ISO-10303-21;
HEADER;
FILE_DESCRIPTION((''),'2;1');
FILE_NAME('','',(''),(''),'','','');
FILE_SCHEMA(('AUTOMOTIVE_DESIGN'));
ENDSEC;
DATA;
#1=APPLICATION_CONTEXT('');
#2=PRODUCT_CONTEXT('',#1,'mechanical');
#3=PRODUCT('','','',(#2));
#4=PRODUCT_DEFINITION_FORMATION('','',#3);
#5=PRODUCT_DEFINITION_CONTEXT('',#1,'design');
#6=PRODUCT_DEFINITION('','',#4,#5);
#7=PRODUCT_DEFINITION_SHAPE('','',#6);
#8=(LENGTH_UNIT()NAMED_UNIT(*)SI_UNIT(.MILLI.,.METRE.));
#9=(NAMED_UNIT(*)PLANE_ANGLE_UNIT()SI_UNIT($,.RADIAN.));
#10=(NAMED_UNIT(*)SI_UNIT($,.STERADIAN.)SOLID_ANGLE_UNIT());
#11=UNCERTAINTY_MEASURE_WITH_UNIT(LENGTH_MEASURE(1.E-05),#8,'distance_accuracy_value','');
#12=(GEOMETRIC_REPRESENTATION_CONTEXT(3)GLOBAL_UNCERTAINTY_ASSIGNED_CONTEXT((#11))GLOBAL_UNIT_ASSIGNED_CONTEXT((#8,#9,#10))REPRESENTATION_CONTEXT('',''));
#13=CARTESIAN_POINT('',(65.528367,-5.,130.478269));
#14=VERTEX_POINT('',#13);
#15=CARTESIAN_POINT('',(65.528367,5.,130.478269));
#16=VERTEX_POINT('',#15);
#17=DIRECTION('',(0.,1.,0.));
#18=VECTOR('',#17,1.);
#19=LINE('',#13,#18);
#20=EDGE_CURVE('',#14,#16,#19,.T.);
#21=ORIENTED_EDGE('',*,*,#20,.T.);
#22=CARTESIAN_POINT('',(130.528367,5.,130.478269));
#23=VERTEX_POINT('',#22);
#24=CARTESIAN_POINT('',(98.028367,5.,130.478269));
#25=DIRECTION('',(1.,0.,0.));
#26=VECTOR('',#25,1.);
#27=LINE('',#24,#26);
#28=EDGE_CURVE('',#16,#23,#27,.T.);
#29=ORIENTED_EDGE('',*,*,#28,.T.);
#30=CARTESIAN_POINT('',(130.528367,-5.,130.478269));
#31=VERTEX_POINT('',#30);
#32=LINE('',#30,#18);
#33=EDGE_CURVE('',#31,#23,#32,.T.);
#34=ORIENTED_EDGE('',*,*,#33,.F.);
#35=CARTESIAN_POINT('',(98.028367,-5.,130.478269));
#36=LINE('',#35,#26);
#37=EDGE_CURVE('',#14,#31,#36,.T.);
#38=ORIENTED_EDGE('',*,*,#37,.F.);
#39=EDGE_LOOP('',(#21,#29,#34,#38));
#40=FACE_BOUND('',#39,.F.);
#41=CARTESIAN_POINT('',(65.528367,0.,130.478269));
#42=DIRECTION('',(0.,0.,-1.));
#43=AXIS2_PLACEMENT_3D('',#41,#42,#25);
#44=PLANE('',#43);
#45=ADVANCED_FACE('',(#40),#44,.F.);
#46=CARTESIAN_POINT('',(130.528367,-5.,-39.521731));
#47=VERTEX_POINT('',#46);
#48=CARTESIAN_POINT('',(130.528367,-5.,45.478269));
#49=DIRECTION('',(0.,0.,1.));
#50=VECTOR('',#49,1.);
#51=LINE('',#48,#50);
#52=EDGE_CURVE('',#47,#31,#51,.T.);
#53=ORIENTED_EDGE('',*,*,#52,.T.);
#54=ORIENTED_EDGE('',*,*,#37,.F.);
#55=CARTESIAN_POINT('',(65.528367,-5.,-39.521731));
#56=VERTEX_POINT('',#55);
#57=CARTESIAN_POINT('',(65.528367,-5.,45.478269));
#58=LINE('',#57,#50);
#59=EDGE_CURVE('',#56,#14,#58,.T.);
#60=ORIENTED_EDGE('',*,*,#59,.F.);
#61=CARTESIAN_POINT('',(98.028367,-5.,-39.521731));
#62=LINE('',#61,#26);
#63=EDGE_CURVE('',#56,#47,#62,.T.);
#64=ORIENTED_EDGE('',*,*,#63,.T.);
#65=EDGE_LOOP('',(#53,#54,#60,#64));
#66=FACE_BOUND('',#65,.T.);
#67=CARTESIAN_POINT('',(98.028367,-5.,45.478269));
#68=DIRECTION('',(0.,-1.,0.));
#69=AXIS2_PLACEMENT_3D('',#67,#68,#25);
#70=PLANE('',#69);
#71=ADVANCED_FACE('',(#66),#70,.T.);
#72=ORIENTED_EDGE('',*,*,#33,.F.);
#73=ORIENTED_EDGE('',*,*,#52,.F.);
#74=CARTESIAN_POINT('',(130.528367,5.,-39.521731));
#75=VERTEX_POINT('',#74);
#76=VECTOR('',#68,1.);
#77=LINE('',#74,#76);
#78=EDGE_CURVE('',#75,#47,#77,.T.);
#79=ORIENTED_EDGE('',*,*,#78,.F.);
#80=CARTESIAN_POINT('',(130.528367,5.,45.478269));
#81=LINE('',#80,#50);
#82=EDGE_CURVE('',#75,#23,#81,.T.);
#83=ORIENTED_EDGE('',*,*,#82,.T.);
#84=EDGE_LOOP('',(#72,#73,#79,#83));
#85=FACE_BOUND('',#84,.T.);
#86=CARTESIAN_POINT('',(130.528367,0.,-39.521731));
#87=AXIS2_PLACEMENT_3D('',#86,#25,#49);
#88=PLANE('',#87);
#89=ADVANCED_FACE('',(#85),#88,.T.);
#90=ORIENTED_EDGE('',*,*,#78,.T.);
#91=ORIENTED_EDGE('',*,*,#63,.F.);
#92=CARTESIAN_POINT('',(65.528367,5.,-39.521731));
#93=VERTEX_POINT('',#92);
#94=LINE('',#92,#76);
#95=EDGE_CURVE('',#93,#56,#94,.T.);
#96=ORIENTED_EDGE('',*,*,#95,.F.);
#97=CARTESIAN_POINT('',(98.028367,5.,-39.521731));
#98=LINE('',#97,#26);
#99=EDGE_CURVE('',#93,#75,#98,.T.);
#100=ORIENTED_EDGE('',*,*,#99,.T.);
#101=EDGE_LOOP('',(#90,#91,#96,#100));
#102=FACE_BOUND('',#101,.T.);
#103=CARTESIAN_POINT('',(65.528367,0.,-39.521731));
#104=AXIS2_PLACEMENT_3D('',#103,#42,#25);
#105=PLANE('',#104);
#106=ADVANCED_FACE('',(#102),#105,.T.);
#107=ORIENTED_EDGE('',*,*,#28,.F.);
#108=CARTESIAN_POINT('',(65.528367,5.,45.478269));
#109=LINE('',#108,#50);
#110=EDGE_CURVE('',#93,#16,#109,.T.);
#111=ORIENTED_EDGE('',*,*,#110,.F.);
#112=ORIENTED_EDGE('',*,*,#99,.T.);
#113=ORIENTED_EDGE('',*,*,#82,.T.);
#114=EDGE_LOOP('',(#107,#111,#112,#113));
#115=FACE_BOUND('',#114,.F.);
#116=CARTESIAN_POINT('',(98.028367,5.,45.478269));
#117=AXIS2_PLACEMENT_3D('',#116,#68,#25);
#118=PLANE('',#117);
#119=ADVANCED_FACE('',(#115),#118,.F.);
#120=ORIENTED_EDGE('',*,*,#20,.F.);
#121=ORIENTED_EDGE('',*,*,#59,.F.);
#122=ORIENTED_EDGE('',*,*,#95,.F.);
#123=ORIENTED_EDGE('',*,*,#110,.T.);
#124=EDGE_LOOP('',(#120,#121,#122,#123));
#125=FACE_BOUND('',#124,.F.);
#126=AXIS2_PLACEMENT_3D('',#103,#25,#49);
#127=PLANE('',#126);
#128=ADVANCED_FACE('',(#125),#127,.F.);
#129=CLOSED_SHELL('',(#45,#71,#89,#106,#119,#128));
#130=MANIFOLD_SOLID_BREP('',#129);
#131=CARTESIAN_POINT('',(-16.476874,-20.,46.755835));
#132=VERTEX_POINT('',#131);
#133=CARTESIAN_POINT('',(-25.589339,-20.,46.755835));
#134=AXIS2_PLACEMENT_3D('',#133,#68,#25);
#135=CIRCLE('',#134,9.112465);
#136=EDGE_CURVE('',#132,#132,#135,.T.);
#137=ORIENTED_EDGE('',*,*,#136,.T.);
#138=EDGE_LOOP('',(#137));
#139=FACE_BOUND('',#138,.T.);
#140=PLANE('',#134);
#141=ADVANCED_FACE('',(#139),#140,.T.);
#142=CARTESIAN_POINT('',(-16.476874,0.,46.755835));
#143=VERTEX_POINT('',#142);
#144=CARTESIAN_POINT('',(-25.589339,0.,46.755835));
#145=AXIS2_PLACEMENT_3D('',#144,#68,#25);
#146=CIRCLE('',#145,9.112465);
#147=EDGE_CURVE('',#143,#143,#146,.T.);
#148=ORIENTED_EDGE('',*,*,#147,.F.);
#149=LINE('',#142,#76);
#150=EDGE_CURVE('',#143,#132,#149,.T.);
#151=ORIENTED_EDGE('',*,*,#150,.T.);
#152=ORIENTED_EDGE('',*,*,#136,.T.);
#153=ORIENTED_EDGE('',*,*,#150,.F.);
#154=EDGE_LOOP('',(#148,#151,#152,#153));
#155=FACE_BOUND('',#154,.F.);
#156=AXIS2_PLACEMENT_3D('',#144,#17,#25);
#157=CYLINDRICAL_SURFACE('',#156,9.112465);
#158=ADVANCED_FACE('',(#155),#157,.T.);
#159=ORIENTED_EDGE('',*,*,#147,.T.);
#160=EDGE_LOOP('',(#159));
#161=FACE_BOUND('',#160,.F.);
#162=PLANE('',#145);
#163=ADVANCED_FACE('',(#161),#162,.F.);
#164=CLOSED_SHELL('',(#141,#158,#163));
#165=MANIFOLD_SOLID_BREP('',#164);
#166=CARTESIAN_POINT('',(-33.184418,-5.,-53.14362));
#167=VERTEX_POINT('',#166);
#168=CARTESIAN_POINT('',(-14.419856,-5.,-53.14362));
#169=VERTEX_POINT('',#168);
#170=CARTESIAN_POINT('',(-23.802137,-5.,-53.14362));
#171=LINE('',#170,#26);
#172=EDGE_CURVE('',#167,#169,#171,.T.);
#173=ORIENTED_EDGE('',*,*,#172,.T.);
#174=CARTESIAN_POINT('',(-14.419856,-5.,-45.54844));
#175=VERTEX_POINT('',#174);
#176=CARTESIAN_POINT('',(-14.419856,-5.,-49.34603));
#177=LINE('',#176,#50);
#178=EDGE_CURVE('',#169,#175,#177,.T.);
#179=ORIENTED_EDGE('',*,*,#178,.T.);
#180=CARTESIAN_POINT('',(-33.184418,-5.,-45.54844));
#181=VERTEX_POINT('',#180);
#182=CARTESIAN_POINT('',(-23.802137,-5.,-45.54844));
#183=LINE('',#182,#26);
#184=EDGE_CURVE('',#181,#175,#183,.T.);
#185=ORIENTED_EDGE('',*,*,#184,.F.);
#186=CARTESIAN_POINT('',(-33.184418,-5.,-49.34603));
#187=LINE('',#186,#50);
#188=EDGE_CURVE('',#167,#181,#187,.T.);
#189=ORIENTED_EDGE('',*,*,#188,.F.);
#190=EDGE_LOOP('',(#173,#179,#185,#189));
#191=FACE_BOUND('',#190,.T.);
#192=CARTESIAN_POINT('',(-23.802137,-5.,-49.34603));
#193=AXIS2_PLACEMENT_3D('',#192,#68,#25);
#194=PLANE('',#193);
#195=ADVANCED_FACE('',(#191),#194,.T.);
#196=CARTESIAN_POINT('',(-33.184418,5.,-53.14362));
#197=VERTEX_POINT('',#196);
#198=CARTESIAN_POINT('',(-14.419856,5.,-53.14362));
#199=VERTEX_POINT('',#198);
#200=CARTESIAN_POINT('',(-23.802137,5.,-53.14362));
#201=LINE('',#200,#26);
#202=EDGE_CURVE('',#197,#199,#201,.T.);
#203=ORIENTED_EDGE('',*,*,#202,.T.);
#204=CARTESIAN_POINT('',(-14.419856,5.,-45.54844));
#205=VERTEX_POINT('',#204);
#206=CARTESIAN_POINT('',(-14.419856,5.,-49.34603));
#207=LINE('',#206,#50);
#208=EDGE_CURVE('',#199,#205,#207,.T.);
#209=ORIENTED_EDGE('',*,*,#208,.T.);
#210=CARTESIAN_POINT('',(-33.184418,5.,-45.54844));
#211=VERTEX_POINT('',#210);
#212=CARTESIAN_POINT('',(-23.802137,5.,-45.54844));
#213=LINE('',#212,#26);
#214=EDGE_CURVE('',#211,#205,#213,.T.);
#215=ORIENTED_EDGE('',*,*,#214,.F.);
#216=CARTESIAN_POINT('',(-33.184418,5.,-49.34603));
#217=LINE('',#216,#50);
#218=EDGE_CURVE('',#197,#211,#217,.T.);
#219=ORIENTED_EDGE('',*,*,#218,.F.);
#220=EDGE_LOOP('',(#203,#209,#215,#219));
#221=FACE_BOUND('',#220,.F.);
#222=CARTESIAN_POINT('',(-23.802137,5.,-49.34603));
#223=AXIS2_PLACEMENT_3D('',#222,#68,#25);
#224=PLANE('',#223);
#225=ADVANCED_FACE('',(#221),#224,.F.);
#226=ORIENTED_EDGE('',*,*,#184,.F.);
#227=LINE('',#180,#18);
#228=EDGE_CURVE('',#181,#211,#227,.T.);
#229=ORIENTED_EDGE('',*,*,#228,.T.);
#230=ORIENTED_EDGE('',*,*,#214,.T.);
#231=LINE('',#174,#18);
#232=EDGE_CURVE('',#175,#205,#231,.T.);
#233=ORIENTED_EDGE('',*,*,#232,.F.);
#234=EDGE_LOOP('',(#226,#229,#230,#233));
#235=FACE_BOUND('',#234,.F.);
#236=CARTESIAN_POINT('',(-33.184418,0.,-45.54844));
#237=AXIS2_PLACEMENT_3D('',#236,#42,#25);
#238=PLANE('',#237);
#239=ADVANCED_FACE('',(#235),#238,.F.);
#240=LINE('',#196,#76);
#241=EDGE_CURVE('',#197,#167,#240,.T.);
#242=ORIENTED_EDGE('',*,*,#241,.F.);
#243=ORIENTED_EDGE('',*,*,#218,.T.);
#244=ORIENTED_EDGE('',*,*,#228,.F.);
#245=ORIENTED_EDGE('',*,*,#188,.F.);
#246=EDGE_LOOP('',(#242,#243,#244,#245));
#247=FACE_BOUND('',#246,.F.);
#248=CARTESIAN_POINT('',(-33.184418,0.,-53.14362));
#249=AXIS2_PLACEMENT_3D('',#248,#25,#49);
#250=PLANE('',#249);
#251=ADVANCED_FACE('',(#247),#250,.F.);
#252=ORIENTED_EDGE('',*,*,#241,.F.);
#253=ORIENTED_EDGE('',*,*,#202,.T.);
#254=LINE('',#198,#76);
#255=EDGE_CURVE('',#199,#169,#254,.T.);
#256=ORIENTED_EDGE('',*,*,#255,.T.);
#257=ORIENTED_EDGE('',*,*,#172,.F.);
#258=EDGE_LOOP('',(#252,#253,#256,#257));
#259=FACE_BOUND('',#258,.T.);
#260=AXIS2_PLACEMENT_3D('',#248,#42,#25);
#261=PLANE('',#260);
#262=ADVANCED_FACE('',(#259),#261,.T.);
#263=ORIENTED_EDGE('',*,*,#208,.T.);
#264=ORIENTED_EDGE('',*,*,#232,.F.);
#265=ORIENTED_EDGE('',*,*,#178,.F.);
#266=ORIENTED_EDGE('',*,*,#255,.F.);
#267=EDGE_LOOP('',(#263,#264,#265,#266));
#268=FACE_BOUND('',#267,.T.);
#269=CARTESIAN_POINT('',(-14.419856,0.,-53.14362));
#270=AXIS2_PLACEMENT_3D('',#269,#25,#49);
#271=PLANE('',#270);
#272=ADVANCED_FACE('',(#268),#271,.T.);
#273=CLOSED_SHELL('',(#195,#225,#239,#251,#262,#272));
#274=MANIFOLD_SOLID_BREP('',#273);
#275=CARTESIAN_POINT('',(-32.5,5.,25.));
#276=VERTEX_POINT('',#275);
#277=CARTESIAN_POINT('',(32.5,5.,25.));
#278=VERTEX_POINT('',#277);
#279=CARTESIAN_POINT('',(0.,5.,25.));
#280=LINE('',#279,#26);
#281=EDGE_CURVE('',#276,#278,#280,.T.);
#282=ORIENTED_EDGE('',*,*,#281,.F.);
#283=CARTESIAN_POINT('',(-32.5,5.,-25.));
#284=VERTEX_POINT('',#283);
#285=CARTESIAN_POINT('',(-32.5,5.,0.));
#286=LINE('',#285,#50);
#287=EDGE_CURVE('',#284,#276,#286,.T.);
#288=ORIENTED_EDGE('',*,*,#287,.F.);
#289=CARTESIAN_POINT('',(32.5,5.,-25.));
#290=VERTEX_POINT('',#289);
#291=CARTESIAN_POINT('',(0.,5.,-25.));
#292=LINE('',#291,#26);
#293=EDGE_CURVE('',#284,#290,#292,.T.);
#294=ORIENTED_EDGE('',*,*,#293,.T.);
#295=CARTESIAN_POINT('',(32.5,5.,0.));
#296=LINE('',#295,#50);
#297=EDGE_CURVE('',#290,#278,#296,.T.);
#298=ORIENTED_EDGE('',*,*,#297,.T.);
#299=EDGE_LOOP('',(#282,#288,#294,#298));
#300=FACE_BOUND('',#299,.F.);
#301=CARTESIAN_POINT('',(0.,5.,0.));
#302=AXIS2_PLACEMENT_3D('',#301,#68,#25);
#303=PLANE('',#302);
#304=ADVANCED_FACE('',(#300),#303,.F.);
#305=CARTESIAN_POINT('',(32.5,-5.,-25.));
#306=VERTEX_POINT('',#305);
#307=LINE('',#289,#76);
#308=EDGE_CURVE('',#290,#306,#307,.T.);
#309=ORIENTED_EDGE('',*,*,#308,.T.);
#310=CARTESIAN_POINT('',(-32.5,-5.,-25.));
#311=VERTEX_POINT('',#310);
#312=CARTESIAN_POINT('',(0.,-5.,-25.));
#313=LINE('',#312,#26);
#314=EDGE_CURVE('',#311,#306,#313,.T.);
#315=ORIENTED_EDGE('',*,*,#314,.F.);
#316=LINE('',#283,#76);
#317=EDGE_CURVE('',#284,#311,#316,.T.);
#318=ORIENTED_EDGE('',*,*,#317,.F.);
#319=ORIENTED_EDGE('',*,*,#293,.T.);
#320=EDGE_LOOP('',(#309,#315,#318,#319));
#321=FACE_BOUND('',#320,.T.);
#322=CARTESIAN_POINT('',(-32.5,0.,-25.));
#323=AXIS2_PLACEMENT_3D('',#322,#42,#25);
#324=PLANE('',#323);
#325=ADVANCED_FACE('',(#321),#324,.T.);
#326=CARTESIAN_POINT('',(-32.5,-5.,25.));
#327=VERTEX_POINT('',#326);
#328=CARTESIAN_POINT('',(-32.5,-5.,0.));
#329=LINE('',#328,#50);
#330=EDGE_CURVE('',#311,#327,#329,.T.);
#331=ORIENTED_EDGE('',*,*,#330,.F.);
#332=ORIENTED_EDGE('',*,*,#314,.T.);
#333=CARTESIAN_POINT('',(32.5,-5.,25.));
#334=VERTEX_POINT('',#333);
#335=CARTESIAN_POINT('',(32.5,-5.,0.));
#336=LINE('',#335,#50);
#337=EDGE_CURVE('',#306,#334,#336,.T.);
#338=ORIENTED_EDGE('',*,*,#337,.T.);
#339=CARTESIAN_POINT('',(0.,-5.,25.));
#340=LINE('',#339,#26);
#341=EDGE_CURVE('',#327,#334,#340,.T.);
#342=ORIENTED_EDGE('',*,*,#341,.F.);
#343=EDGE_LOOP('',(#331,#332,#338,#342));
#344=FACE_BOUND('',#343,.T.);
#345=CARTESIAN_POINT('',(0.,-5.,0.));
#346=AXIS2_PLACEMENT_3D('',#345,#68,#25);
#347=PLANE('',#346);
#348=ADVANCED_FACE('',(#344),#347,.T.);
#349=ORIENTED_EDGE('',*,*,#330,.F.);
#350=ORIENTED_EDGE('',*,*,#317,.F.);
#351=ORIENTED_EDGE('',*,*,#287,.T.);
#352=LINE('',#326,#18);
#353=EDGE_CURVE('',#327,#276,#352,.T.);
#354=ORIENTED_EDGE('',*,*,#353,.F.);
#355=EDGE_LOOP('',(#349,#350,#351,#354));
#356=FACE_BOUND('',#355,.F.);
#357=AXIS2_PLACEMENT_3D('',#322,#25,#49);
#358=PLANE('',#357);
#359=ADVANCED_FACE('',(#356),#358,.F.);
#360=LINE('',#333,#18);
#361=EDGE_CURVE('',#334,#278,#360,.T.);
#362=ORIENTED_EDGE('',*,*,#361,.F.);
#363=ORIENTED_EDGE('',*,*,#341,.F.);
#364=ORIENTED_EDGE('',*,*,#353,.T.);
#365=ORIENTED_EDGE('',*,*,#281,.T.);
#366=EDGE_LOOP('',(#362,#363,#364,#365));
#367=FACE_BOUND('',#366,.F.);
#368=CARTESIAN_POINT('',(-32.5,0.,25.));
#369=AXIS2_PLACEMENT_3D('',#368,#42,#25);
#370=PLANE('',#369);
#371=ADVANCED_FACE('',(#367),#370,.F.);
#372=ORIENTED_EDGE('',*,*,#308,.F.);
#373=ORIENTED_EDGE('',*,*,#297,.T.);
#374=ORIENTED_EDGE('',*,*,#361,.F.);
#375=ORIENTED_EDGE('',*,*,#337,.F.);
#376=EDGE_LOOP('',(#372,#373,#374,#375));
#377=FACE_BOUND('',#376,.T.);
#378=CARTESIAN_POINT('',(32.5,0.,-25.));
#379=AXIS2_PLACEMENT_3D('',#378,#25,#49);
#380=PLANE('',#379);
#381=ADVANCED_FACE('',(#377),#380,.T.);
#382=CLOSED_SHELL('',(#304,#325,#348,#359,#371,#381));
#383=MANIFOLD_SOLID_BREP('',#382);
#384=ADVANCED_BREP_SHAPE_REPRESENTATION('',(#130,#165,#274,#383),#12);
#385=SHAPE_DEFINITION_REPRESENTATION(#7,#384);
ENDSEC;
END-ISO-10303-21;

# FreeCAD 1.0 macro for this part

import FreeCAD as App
import Part
import Sketcher

V = App.Vector

doc = App.newDocument("Part")
body = doc.addObject("PartDesign::Body", "Body")

sketch1 = body.newObject("Sketcher::SketchObject", "Sketch")
sketch1.AttachmentSupport = (doc.getObject("XZ_Plane"), [""])
sketch1.MapMode = "FlatFace"
sketch1.addGeometry([
    Part.LineSegment(V(-32.5, 25, 0), V(-32.5, -25, 0)),
    Part.LineSegment(V(-32.5, -25, 0), V(32.5, -25, 0)),
    Part.LineSegment(V(32.5, -25, 0), V(32.5, 25, 0)),
    Part.LineSegment(V(32.5, 25, 0), V(-32.5, 25, 0)),
], False)
sketch1.addConstraint([
    Sketcher.Constraint("Coincident", 0, 2, 1, 1),
    Sketcher.Constraint("Coincident", 1, 2, 2, 1),
    Sketcher.Constraint("Coincident", 2, 2, 3, 1),
    Sketcher.Constraint("Coincident", 3, 2, 0, 1),
    Sketcher.Constraint("Vertical", 0),
    Sketcher.Constraint("Horizontal", 1),
    Sketcher.Constraint("Vertical", 2),
    Sketcher.Constraint("Horizontal", 3),
    Sketcher.Constraint("Symmetric", 0, 2, 2, 2, -1, 1),
    Sketcher.Constraint("DistanceX", 1, 1, 1, 2, 65.0),
    Sketcher.Constraint("DistanceY", 0, 2, 0, 1, 50.0),
])
pad1 = body.newObject("PartDesign::Pad", "Pad")
pad1.Profile = sketch1
pad1.Length = 10
pad1.Midplane = True
body2 = doc.addObject("PartDesign::Body", "Body001")

sketch2 = body2.newObject("Sketcher::SketchObject", "Sketch001")
sketch2.AttachmentSupport = (doc.getObject("XZ_Plane001"), [""])
sketch2.MapMode = "FlatFace"
sketch2.addGeometry([
    Part.LineSegment(V(65.528367, 130.478269, 0), V(65.528367, -39.521731, 0)),
    Part.LineSegment(V(65.528367, -39.521731, 0), V(130.528367, -39.521731, 0)),
    Part.LineSegment(V(130.528367, -39.521731, 0), V(130.528367, 130.478269, 0)),
    Part.LineSegment(V(130.528367, 130.478269, 0), V(65.528367, 130.478269, 0)),
], False)
sketch2.addConstraint([
    Sketcher.Constraint("Coincident", 0, 2, 1, 1),
    Sketcher.Constraint("Coincident", 1, 2, 2, 1),
    Sketcher.Constraint("Coincident", 2, 2, 3, 1),
    Sketcher.Constraint("Coincident", 3, 2, 0, 1),
    Sketcher.Constraint("Vertical", 0),
    Sketcher.Constraint("Horizontal", 1),
    Sketcher.Constraint("Vertical", 2),
    Sketcher.Constraint("Horizontal", 3),
    Sketcher.Constraint("DistanceX", 1, 1, 1, 2, 65.0),
    Sketcher.Constraint("DistanceY", 0, 2, 0, 1, 170.0),
    Sketcher.Constraint("DistanceY", 0, 2, -1, 1, 39.521731),
    Sketcher.Constraint("DistanceX", -1, 1, 0, 2, 65.528367),
])
pad2 = body2.newObject("PartDesign::Pad", "Pad001")
pad2.Profile = sketch2
pad2.Length = 10
pad2.Midplane = True
body3 = doc.addObject("PartDesign::Body", "Body002")

sketch3 = body3.newObject("Sketcher::SketchObject", "Sketch002")
sketch3.AttachmentSupport = (doc.getObject("XZ_Plane002"), [""])
sketch3.MapMode = "FlatFace"
sketch3.addGeometry(Part.Circle(V(-25.589339, 46.755835, 0), V(0, 0, 1), 9.112465), False)
sketch3.addConstraint([
    Sketcher.Constraint("Diameter", 0, 18.22493),
    Sketcher.Constraint("DistanceX", 0, 3, -1, 1, 25.589339),
    Sketcher.Constraint("DistanceY", -1, 1, 0, 3, 46.755835),
])
pad3 = body3.newObject("PartDesign::Pad", "Pad002")
pad3.Profile = sketch3
pad3.Length = 20
body4 = doc.addObject("PartDesign::Body", "Body003")

sketch4 = body4.newObject("Sketcher::SketchObject", "Sketch003")
sketch4.AttachmentSupport = (doc.getObject("XZ_Plane003"), [""])
sketch4.MapMode = "FlatFace"
sketch4.addGeometry([
    Part.LineSegment(V(-33.184418, -45.54844, 0), V(-33.184418, -53.14362, 0)),
    Part.LineSegment(V(-33.184418, -53.14362, 0), V(-14.419856, -53.14362, 0)),
    Part.LineSegment(V(-14.419856, -53.14362, 0), V(-14.419856, -45.54844, 0)),
    Part.LineSegment(V(-14.419856, -45.54844, 0), V(-33.184418, -45.54844, 0)),
], False)
sketch4.addConstraint([
    Sketcher.Constraint("Coincident", 0, 2, 1, 1),
    Sketcher.Constraint("Coincident", 1, 2, 2, 1),
    Sketcher.Constraint("Coincident", 2, 2, 3, 1),
    Sketcher.Constraint("Coincident", 3, 2, 0, 1),
    Sketcher.Constraint("Vertical", 0),
    Sketcher.Constraint("Horizontal", 1),
    Sketcher.Constraint("Vertical", 2),
    Sketcher.Constraint("Horizontal", 3),
    Sketcher.Constraint("DistanceY", 0, 2, 0, 1, 7.595181),
    Sketcher.Constraint("DistanceX", 1, 1, 1, 2, 18.764562),
    Sketcher.Constraint("DistanceY", 0, 2, -1, 1, 53.14362),
    Sketcher.Constraint("DistanceX", 0, 2, -1, 1, 33.184418),
])
pad4 = body4.newObject("PartDesign::Pad", "Pad003")
pad4.Profile = sketch4
pad4.Length = 10
pad4.Midplane = True

doc.recompute()
